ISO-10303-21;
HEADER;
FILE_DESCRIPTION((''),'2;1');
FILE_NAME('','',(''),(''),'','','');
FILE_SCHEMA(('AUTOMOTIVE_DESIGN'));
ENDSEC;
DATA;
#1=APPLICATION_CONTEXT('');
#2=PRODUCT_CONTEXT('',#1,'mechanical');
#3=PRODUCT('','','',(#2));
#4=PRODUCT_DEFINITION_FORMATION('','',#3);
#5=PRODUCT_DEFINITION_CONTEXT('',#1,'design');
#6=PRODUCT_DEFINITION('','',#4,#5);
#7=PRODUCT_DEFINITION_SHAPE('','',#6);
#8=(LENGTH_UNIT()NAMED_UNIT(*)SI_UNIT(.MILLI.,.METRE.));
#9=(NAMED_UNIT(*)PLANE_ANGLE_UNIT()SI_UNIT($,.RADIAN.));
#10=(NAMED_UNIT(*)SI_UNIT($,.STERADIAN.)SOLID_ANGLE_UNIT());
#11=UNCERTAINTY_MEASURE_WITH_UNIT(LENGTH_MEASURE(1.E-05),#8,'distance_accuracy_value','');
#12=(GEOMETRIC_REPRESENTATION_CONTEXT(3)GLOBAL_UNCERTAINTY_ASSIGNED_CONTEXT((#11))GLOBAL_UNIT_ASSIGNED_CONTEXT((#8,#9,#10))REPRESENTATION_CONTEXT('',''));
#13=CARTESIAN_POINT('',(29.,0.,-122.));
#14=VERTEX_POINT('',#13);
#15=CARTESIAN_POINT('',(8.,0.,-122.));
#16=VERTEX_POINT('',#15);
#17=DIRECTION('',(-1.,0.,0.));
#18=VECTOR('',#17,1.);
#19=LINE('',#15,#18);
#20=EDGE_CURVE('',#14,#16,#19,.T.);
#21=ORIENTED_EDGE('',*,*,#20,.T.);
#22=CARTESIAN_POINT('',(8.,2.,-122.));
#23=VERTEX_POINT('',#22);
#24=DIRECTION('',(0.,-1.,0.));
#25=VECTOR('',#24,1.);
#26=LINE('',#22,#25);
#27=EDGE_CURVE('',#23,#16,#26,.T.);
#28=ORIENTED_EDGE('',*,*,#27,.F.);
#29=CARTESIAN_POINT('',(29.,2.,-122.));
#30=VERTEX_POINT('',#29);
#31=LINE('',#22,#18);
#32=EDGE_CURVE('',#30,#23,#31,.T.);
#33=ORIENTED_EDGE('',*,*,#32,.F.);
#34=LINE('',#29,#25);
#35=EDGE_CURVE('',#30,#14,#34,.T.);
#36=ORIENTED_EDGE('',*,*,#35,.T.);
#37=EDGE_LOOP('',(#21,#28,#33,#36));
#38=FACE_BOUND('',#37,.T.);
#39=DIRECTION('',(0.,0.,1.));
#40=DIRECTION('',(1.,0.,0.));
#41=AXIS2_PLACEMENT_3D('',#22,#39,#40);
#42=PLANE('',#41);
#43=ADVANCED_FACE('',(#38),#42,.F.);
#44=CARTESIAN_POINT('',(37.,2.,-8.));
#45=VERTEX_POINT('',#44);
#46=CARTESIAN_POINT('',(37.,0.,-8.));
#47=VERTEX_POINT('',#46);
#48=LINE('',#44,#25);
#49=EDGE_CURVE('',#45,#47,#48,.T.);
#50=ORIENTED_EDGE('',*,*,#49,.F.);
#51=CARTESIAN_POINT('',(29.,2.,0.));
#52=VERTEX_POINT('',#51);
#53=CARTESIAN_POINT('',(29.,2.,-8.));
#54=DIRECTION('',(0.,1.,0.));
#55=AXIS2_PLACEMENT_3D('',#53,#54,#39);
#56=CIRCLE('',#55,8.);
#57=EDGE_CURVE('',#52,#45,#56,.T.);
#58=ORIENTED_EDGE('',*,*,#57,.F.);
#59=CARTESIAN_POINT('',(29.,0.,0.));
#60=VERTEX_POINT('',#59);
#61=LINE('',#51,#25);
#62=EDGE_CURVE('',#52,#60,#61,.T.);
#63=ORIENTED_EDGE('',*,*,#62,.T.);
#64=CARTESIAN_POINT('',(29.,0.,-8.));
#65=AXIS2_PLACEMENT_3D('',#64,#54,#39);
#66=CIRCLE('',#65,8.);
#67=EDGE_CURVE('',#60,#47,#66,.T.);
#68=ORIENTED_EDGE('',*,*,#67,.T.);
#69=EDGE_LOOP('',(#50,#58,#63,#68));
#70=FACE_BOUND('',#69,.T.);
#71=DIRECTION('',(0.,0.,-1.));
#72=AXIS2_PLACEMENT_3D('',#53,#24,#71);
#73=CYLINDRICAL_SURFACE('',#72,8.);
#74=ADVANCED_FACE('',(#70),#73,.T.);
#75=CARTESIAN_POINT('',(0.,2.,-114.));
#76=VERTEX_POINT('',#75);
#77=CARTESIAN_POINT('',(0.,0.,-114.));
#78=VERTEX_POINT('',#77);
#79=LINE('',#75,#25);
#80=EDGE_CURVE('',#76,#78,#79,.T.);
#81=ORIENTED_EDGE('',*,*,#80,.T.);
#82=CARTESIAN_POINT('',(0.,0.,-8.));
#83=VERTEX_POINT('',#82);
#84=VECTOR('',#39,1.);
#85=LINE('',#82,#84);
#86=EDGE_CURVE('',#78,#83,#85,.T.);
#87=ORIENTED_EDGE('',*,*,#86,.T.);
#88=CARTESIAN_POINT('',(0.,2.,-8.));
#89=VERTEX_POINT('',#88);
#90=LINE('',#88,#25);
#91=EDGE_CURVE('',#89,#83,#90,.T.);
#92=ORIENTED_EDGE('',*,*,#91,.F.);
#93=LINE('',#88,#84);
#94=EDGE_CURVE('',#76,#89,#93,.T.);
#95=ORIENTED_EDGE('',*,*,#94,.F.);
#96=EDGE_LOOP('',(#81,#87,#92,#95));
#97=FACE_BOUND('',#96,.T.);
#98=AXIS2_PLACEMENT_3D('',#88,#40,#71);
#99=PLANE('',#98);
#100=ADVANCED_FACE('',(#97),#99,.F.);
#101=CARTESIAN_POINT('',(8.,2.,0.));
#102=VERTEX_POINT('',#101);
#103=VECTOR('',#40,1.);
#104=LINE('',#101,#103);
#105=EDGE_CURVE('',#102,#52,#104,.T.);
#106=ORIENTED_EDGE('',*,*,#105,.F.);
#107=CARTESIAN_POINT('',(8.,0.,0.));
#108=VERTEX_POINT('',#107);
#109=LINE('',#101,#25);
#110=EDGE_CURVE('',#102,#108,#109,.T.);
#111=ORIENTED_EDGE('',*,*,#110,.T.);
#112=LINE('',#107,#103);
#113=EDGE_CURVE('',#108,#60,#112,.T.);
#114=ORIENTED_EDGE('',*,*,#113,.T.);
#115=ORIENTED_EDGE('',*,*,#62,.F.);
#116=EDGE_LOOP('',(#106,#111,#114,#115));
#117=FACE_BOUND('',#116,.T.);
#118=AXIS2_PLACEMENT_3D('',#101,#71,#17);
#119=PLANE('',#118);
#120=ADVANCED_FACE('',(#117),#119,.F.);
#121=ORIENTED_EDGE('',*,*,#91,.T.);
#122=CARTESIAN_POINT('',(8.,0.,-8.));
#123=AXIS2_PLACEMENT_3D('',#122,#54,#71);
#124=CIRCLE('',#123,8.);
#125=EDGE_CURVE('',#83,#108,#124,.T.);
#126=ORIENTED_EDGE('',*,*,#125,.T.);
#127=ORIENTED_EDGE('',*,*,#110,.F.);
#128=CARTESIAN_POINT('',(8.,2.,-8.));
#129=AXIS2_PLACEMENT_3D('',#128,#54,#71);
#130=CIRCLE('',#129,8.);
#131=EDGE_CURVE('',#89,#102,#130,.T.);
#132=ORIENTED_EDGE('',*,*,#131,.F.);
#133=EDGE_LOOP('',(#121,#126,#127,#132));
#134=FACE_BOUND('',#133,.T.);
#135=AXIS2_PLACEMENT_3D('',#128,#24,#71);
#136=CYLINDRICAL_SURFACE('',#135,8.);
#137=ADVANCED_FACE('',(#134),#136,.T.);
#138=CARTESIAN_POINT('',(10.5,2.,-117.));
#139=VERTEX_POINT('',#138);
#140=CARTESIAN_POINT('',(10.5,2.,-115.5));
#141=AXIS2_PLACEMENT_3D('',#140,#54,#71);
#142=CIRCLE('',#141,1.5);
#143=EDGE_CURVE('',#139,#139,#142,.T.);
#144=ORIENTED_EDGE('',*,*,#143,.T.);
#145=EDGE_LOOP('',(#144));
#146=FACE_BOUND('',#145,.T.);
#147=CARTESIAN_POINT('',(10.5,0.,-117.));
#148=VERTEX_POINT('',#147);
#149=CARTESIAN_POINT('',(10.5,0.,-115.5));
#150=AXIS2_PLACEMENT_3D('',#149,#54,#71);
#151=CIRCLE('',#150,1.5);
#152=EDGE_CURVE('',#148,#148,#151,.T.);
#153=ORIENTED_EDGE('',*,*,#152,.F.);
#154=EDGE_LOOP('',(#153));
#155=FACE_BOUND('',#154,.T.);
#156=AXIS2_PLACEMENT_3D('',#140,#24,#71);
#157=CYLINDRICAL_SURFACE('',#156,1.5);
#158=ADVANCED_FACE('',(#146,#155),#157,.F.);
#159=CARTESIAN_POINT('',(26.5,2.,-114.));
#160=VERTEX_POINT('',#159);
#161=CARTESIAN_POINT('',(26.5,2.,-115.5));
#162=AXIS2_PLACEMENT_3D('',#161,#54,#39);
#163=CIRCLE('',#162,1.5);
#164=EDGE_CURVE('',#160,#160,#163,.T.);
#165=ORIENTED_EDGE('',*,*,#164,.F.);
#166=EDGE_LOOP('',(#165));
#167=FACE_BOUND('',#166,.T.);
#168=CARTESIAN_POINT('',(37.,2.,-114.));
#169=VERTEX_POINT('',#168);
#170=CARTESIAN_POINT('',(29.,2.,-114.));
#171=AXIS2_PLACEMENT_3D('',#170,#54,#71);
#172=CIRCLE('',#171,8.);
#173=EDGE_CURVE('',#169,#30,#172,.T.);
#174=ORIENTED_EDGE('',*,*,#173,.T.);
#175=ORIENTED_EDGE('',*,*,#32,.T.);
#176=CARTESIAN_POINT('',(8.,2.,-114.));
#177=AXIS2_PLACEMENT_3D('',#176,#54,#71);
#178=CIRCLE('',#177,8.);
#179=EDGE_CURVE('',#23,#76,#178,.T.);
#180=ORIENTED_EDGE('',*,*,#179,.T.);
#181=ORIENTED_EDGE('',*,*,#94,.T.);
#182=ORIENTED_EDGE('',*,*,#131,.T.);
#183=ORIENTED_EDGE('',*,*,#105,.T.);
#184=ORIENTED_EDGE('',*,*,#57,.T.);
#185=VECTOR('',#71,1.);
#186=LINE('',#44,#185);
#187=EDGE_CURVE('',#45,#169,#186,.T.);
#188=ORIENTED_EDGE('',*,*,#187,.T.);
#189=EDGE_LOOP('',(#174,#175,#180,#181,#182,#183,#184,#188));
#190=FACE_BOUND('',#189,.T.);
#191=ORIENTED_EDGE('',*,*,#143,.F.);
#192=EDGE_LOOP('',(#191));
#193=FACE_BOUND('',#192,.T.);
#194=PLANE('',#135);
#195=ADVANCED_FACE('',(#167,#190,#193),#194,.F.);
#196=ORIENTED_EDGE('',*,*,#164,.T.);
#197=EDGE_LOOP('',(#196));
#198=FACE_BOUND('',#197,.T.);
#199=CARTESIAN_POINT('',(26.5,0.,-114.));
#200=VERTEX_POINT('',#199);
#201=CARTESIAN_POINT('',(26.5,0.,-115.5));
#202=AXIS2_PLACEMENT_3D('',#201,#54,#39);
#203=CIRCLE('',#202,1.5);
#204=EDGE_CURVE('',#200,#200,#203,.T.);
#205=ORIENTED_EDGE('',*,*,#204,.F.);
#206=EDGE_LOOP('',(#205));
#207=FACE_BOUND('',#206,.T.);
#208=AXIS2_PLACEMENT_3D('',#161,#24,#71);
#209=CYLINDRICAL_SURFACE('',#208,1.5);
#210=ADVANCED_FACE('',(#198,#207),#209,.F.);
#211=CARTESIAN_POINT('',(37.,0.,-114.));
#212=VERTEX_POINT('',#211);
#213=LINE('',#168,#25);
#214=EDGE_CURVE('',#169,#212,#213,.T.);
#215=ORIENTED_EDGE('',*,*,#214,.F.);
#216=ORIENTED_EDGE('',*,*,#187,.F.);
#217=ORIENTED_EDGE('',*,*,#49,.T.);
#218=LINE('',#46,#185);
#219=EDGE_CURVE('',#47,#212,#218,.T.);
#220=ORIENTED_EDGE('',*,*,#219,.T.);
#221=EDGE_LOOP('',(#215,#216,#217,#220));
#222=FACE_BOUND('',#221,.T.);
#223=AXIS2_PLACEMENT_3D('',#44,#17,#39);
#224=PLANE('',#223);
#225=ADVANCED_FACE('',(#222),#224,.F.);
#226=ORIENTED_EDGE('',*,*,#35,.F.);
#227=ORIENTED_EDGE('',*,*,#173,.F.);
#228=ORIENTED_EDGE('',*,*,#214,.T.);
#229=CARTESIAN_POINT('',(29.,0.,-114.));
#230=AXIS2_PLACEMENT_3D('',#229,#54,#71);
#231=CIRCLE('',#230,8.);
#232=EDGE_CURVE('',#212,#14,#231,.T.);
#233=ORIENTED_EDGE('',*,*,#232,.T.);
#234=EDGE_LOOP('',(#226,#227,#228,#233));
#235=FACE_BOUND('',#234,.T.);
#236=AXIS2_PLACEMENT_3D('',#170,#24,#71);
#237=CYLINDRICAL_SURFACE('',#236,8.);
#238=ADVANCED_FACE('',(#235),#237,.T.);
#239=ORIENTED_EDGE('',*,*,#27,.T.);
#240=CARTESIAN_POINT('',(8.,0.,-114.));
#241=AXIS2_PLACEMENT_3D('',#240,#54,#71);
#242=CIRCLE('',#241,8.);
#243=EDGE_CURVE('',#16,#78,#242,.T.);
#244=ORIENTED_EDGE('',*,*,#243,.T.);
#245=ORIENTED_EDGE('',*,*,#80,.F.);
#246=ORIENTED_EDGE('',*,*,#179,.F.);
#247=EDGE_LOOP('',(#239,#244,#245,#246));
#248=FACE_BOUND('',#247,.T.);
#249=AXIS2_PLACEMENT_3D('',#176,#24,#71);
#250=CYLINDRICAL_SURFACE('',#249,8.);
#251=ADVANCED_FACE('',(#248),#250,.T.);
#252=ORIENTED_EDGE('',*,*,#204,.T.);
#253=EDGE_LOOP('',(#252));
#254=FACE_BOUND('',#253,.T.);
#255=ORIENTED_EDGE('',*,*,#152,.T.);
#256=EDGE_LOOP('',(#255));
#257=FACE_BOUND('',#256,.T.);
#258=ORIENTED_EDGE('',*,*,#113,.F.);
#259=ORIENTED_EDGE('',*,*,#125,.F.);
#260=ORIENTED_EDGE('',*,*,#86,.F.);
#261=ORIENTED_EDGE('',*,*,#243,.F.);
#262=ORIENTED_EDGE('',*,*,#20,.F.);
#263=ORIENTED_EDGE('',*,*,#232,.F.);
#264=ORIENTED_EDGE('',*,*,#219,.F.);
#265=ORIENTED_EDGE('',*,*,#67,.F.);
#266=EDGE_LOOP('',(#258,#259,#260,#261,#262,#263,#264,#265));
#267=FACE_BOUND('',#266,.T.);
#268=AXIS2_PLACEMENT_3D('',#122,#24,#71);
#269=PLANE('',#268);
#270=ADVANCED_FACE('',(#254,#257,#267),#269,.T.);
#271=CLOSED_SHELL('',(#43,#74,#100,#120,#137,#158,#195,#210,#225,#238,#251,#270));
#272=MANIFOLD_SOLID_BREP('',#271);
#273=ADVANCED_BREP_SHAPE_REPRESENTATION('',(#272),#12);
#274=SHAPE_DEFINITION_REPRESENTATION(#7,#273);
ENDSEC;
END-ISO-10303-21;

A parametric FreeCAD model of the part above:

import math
import FreeCAD as App
import Part
import Sketcher
Q = App.Units.Quantity

doc = App.newDocument("Part")
params = doc.addObject("Spreadsheet::Sheet", "Params")
for row, (alias, value) in enumerate([
    ("sketch1_diameter", "3 mm"),
    ("sketch1_radius", "8 mm"),
    ("sketch1_width", "21 mm"),
    ("sketch1_height", "106 mm"),
    ("pad1_length", "2 mm"),
], start=1):
    params.set(f"A{row}", alias)
    params.set(f"B{row}", "=" + value)
    params.setAlias(f"B{row}", alias)

body = doc.addObject("PartDesign::Body", "Body")

sketch1 = body.newObject("Sketcher::SketchObject", "Sketch")
sketch1.AttachmentSupport = (doc.getObject("XZ_Plane"), [""])
sketch1.MapMode = "FlatFace"
sketch1.addGeometry(Part.LineSegment(App.Vector(8, 0, 0), App.Vector(29, 0, 0)), False)
sketch1.addGeometry(Part.ArcOfCircle(Part.Circle(App.Vector(29, -8, 0), App.Vector(0, 0, 1), 8), math.radians(0), math.radians(90)), False)
sketch1.addGeometry(Part.LineSegment(App.Vector(37, -8, 0), App.Vector(37, -114, 0)), False)
sketch1.addGeometry(Part.ArcOfCircle(Part.Circle(App.Vector(29, -114, 0), App.Vector(0, 0, 1), 8), math.radians(-90), math.radians(0)), False)
sketch1.addGeometry(Part.LineSegment(App.Vector(29, -122, 0), App.Vector(8, -122, 0)), False)
sketch1.addGeometry(Part.ArcOfCircle(Part.Circle(App.Vector(8, -114, 0), App.Vector(0, 0, 1), 8), math.radians(-180), math.radians(-90)), False)
sketch1.addGeometry(Part.LineSegment(App.Vector(0, -114, 0), App.Vector(0, -8, 0)), False)
sketch1.addGeometry(Part.ArcOfCircle(Part.Circle(App.Vector(8, -8, 0), App.Vector(0, 0, 1), 8), math.radians(90), math.radians(180)), False)
sketch1.addGeometry(Part.Circle(App.Vector(10.5, -115.5, 0), App.Vector(0, 0, 1), 1.5), False)
sketch1.addGeometry(Part.Circle(App.Vector(26.5, -115.5, 0), App.Vector(0, 0, 1), 1.5), False)
sketch1.addConstraint(Sketcher.Constraint("Tangent", 0, 2, 1, 2))
sketch1.addConstraint(Sketcher.Constraint("Tangent", 1, 1, 2, 1))
sketch1.addConstraint(Sketcher.Constraint("Tangent", 2, 2, 3, 2))
sketch1.addConstraint(Sketcher.Constraint("Tangent", 3, 1, 4, 1))
sketch1.addConstraint(Sketcher.Constraint("Tangent", 4, 2, 5, 2))
sketch1.addConstraint(Sketcher.Constraint("Tangent", 5, 1, 6, 1))
sketch1.addConstraint(Sketcher.Constraint("Tangent", 6, 2, 7, 2))
sketch1.addConstraint(Sketcher.Constraint("Tangent", 7, 1, 0, 1))
sketch1.addConstraint(Sketcher.Constraint("Horizontal", 0))
sketch1.addConstraint(Sketcher.Constraint("Vertical", 2))
sketch1.addConstraint(Sketcher.Constraint("Horizontal", 4))
sketch1.addConstraint(Sketcher.Constraint("Vertical", 6))
sketch1.addConstraint(Sketcher.Constraint("Equal", 1, 3))
sketch1.addConstraint(Sketcher.Constraint("Equal", 3, 5))
sketch1.addConstraint(Sketcher.Constraint("Equal", 5, 7))
sketch1.addConstraint(Sketcher.Constraint("Equal", 8, 9))
sketch1.addConstraint(Sketcher.Constraint("PointOnObject", 0, 2, -1))
sketch1.addConstraint(Sketcher.Constraint("PointOnObject", 5, 1, -2))
sketch1.addConstraint(Sketcher.Constraint("Horizontal", 8, 3, 9, 3))
sketch1.addConstraint(Sketcher.Constraint("Diameter", 8, Q("3 mm")))
sketch1.addConstraint(Sketcher.Constraint("Radius", 1, Q("8 mm")))
sketch1.addConstraint(Sketcher.Constraint("DistanceX", 0, 1, 0, 2, Q("21 mm")))
sketch1.addConstraint(Sketcher.Constraint("DistanceY", 2, 2, 2, 1, Q("106 mm")))
sketch1.addConstraint(Sketcher.Constraint("DistanceX", 8, 3, 9, 3, Q("16 mm")))
sketch1.addConstraint(Sketcher.Constraint("DistanceX", -1, 1, 8, 3, Q("10.5 mm")))
sketch1.addConstraint(Sketcher.Constraint("DistanceY", 8, 3, -1, 1, Q("115.5 mm")))
sketch1.setExpression("Constraints[19]", "Params.sketch1_diameter")
sketch1.setExpression("Constraints[20]", "Params.sketch1_radius")
sketch1.setExpression("Constraints[21]", "Params.sketch1_width")
sketch1.setExpression("Constraints[22]", "Params.sketch1_height")
pad1 = body.newObject("PartDesign::Pad", "Pad")
pad1.Profile = sketch1
pad1.setExpression("Length", "Params.pad1_length")
pad1.Reversed = True

doc.recompute()
